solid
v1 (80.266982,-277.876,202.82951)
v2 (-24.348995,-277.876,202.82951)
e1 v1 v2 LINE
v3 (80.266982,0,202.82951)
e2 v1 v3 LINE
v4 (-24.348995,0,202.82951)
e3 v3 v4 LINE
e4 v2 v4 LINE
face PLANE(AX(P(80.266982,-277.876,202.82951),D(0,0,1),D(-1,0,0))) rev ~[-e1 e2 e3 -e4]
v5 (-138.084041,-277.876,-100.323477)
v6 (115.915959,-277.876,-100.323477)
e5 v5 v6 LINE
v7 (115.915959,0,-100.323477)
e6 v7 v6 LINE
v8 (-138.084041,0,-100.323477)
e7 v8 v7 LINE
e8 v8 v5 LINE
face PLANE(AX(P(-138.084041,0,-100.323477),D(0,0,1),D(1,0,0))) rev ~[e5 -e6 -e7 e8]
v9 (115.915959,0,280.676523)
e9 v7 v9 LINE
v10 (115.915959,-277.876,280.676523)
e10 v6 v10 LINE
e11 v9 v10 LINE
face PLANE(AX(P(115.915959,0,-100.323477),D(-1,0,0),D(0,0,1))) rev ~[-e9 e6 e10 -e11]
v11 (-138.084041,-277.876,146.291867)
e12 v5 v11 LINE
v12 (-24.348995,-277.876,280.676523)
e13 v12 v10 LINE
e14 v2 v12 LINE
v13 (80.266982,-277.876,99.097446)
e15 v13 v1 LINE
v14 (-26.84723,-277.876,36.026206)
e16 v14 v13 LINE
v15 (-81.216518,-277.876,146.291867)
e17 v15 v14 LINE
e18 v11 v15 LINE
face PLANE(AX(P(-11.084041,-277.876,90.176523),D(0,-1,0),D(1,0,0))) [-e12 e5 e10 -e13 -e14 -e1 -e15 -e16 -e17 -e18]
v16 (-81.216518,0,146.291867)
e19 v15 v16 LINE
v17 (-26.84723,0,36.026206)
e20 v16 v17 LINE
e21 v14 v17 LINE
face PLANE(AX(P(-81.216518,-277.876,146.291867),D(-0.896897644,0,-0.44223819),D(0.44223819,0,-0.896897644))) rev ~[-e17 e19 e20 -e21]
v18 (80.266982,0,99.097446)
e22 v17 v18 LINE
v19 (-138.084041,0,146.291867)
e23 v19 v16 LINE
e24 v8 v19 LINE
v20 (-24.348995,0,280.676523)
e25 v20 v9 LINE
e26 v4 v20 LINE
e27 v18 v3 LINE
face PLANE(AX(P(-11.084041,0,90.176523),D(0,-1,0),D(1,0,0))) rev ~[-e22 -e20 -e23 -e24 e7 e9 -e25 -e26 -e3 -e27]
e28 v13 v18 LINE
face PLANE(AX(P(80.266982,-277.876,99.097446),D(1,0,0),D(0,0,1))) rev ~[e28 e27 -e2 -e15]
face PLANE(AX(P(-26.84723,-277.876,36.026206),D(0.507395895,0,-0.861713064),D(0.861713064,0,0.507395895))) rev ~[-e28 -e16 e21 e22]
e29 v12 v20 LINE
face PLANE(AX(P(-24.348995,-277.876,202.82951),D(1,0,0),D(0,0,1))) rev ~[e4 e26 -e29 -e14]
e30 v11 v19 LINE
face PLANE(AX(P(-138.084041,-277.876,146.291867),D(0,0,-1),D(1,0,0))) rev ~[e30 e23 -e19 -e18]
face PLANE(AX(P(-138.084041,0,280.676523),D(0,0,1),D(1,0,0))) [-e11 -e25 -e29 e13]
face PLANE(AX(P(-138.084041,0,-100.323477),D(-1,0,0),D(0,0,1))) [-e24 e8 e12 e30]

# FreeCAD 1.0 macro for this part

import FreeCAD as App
import Part
import Sketcher

V = App.Vector
Q = App.Units.Quantity

doc = App.newDocument("Part")
body = doc.addObject("PartDesign::Body", "Body")

# Sketch on XZ plane
sketch1 = body.newObject("Sketcher::SketchObject", "Sketch")
sketch1.AttachmentSupport = (doc.getObject("XZ_Plane"), [""])
sketch1.MapMode = "FlatFace"
sketch1.addGeometry([
    Part.LineSegment(V(-138, 281, 0), V(-138, -100, 0)),
    Part.LineSegment(V(-138, -100, 0), V(116, -100, 0)),
    Part.LineSegment(V(116, -100, 0), V(116, 281, 0)),
    Part.LineSegment(V(116, 281, 0), V(-138, 281, 0)),
], False)
sketch1.addConstraint([
    Sketcher.Constraint("Coincident", 0, 2, 1, 1),
    Sketcher.Constraint("Coincident", 1, 2, 2, 1),
    Sketcher.Constraint("Coincident", 2, 2, 3, 1),
    Sketcher.Constraint("Coincident", 3, 2, 0, 1),
    Sketcher.Constraint("Vertical", 0),
    Sketcher.Constraint("Horizontal", 1),
    Sketcher.Constraint("Vertical", 2),
    Sketcher.Constraint("Horizontal", 3),
    Sketcher.Constraint("DistanceX", 1, 1, 1, 2, Q("10 in")),
    Sketcher.Constraint("DistanceY", 0, 2, 0, 1, Q("15 in")),
    Sketcher.Constraint("DistanceX", 0, 2, -1, 1, 138.084041),
    Sketcher.Constraint("DistanceY", 0, 2, -1, 1, 100.323477),
])
pad1 = body.newObject("PartDesign::Pad", "Pad")
pad1.Profile = sketch1
pad1.Length = Q("10.94 in")

# Sketch on XZ plane
sketch2 = body.newObject("Sketcher::SketchObject", "Sketch001")
sketch2.AttachmentSupport = (doc.getObject("XZ_Plane"), [""])
sketch2.MapMode = "FlatFace"
sketch2.AttachmentOffset = App.Placement(V(0, 0, 10.94 * 25.4), App.Rotation())
sketch2.addGeometry([
    Part.LineSegment(V(-24, 281, 0), V(-138, 281, 0)),  # 0
    Part.LineSegment(V(-138, 281, 0), V(-138, 146, 0)),  # 1
    Part.LineSegment(V(-138, 146, 0), V(-81, 146, 0)),  # 2
    Part.LineSegment(V(-81, 146, 0), V(-27, 36, 0)),  # 3
    Part.LineSegment(V(-27, 36, 0), V(80, 99, 0)),  # 4
    Part.LineSegment(V(80, 99, 0), V(80, 203, 0)),  # 5
    Part.LineSegment(V(80, 203, 0), V(-24, 203, 0)),  # 6
    Part.LineSegment(V(-24, 203, 0), V(-24, 281, 0)),  # 7
], False)
sketch2.addConstraint([
    Sketcher.Constraint("Coincident", 0, 2, 1, 1),
    Sketcher.Constraint("Coincident", 1, 2, 2, 1),
    Sketcher.Constraint("Coincident", 2, 2, 3, 1),
    Sketcher.Constraint("Coincident", 3, 2, 4, 1),
    Sketcher.Constraint("Coincident", 4, 2, 5, 1),
    Sketcher.Constraint("Coincident", 5, 2, 6, 1),
    Sketcher.Constraint("Coincident", 6, 2, 7, 1),
    Sketcher.Constraint("Coincident", 7, 2, 0, 1),
    Sketcher.Constraint("Horizontal", 0),
    Sketcher.Constraint("Vertical", 1),
    Sketcher.Constraint("Horizontal", 2),
    Sketcher.Constraint("Vertical", 5),
    Sketcher.Constraint("Horizontal", 6),
    Sketcher.Constraint("Vertical", 7),
    Sketcher.Constraint("DistanceX", 2, 2, 4, 2, 161.4835),
    Sketcher.Constraint("DistanceX", 0, 2, 0, 1, 113.735046),
    Sketcher.Constraint("DistanceX", 2, 1, 2, 2, 56.867523),
    Sketcher.Constraint("DistanceY", 1, 2, 1, 1, 134.384656),
    Sketcher.Constraint("DistanceY", 5, 1, 5, 2, 103.732064),
    Sketcher.Constraint("DistanceY", 7, 1, 7, 2, 77.847013),
    Sketcher.Constraint("DistanceX", 0, 2, -1, 1, 138.084041),
    Sketcher.Constraint("DistanceX", 3, 2, -1, 1, 26.84723),
    Sketcher.Constraint("DistanceY", -1, 1, 5, 2, 202.82951),
    Sketcher.Constraint("DistanceY", 3, 2, 2, 2, 110.265661),
])
pocket1 = body.newObject("PartDesign::Pocket", "Pocket")
pocket1.Profile = sketch2
pocket1.Length = Q("19.56 in")

doc.recompute()
